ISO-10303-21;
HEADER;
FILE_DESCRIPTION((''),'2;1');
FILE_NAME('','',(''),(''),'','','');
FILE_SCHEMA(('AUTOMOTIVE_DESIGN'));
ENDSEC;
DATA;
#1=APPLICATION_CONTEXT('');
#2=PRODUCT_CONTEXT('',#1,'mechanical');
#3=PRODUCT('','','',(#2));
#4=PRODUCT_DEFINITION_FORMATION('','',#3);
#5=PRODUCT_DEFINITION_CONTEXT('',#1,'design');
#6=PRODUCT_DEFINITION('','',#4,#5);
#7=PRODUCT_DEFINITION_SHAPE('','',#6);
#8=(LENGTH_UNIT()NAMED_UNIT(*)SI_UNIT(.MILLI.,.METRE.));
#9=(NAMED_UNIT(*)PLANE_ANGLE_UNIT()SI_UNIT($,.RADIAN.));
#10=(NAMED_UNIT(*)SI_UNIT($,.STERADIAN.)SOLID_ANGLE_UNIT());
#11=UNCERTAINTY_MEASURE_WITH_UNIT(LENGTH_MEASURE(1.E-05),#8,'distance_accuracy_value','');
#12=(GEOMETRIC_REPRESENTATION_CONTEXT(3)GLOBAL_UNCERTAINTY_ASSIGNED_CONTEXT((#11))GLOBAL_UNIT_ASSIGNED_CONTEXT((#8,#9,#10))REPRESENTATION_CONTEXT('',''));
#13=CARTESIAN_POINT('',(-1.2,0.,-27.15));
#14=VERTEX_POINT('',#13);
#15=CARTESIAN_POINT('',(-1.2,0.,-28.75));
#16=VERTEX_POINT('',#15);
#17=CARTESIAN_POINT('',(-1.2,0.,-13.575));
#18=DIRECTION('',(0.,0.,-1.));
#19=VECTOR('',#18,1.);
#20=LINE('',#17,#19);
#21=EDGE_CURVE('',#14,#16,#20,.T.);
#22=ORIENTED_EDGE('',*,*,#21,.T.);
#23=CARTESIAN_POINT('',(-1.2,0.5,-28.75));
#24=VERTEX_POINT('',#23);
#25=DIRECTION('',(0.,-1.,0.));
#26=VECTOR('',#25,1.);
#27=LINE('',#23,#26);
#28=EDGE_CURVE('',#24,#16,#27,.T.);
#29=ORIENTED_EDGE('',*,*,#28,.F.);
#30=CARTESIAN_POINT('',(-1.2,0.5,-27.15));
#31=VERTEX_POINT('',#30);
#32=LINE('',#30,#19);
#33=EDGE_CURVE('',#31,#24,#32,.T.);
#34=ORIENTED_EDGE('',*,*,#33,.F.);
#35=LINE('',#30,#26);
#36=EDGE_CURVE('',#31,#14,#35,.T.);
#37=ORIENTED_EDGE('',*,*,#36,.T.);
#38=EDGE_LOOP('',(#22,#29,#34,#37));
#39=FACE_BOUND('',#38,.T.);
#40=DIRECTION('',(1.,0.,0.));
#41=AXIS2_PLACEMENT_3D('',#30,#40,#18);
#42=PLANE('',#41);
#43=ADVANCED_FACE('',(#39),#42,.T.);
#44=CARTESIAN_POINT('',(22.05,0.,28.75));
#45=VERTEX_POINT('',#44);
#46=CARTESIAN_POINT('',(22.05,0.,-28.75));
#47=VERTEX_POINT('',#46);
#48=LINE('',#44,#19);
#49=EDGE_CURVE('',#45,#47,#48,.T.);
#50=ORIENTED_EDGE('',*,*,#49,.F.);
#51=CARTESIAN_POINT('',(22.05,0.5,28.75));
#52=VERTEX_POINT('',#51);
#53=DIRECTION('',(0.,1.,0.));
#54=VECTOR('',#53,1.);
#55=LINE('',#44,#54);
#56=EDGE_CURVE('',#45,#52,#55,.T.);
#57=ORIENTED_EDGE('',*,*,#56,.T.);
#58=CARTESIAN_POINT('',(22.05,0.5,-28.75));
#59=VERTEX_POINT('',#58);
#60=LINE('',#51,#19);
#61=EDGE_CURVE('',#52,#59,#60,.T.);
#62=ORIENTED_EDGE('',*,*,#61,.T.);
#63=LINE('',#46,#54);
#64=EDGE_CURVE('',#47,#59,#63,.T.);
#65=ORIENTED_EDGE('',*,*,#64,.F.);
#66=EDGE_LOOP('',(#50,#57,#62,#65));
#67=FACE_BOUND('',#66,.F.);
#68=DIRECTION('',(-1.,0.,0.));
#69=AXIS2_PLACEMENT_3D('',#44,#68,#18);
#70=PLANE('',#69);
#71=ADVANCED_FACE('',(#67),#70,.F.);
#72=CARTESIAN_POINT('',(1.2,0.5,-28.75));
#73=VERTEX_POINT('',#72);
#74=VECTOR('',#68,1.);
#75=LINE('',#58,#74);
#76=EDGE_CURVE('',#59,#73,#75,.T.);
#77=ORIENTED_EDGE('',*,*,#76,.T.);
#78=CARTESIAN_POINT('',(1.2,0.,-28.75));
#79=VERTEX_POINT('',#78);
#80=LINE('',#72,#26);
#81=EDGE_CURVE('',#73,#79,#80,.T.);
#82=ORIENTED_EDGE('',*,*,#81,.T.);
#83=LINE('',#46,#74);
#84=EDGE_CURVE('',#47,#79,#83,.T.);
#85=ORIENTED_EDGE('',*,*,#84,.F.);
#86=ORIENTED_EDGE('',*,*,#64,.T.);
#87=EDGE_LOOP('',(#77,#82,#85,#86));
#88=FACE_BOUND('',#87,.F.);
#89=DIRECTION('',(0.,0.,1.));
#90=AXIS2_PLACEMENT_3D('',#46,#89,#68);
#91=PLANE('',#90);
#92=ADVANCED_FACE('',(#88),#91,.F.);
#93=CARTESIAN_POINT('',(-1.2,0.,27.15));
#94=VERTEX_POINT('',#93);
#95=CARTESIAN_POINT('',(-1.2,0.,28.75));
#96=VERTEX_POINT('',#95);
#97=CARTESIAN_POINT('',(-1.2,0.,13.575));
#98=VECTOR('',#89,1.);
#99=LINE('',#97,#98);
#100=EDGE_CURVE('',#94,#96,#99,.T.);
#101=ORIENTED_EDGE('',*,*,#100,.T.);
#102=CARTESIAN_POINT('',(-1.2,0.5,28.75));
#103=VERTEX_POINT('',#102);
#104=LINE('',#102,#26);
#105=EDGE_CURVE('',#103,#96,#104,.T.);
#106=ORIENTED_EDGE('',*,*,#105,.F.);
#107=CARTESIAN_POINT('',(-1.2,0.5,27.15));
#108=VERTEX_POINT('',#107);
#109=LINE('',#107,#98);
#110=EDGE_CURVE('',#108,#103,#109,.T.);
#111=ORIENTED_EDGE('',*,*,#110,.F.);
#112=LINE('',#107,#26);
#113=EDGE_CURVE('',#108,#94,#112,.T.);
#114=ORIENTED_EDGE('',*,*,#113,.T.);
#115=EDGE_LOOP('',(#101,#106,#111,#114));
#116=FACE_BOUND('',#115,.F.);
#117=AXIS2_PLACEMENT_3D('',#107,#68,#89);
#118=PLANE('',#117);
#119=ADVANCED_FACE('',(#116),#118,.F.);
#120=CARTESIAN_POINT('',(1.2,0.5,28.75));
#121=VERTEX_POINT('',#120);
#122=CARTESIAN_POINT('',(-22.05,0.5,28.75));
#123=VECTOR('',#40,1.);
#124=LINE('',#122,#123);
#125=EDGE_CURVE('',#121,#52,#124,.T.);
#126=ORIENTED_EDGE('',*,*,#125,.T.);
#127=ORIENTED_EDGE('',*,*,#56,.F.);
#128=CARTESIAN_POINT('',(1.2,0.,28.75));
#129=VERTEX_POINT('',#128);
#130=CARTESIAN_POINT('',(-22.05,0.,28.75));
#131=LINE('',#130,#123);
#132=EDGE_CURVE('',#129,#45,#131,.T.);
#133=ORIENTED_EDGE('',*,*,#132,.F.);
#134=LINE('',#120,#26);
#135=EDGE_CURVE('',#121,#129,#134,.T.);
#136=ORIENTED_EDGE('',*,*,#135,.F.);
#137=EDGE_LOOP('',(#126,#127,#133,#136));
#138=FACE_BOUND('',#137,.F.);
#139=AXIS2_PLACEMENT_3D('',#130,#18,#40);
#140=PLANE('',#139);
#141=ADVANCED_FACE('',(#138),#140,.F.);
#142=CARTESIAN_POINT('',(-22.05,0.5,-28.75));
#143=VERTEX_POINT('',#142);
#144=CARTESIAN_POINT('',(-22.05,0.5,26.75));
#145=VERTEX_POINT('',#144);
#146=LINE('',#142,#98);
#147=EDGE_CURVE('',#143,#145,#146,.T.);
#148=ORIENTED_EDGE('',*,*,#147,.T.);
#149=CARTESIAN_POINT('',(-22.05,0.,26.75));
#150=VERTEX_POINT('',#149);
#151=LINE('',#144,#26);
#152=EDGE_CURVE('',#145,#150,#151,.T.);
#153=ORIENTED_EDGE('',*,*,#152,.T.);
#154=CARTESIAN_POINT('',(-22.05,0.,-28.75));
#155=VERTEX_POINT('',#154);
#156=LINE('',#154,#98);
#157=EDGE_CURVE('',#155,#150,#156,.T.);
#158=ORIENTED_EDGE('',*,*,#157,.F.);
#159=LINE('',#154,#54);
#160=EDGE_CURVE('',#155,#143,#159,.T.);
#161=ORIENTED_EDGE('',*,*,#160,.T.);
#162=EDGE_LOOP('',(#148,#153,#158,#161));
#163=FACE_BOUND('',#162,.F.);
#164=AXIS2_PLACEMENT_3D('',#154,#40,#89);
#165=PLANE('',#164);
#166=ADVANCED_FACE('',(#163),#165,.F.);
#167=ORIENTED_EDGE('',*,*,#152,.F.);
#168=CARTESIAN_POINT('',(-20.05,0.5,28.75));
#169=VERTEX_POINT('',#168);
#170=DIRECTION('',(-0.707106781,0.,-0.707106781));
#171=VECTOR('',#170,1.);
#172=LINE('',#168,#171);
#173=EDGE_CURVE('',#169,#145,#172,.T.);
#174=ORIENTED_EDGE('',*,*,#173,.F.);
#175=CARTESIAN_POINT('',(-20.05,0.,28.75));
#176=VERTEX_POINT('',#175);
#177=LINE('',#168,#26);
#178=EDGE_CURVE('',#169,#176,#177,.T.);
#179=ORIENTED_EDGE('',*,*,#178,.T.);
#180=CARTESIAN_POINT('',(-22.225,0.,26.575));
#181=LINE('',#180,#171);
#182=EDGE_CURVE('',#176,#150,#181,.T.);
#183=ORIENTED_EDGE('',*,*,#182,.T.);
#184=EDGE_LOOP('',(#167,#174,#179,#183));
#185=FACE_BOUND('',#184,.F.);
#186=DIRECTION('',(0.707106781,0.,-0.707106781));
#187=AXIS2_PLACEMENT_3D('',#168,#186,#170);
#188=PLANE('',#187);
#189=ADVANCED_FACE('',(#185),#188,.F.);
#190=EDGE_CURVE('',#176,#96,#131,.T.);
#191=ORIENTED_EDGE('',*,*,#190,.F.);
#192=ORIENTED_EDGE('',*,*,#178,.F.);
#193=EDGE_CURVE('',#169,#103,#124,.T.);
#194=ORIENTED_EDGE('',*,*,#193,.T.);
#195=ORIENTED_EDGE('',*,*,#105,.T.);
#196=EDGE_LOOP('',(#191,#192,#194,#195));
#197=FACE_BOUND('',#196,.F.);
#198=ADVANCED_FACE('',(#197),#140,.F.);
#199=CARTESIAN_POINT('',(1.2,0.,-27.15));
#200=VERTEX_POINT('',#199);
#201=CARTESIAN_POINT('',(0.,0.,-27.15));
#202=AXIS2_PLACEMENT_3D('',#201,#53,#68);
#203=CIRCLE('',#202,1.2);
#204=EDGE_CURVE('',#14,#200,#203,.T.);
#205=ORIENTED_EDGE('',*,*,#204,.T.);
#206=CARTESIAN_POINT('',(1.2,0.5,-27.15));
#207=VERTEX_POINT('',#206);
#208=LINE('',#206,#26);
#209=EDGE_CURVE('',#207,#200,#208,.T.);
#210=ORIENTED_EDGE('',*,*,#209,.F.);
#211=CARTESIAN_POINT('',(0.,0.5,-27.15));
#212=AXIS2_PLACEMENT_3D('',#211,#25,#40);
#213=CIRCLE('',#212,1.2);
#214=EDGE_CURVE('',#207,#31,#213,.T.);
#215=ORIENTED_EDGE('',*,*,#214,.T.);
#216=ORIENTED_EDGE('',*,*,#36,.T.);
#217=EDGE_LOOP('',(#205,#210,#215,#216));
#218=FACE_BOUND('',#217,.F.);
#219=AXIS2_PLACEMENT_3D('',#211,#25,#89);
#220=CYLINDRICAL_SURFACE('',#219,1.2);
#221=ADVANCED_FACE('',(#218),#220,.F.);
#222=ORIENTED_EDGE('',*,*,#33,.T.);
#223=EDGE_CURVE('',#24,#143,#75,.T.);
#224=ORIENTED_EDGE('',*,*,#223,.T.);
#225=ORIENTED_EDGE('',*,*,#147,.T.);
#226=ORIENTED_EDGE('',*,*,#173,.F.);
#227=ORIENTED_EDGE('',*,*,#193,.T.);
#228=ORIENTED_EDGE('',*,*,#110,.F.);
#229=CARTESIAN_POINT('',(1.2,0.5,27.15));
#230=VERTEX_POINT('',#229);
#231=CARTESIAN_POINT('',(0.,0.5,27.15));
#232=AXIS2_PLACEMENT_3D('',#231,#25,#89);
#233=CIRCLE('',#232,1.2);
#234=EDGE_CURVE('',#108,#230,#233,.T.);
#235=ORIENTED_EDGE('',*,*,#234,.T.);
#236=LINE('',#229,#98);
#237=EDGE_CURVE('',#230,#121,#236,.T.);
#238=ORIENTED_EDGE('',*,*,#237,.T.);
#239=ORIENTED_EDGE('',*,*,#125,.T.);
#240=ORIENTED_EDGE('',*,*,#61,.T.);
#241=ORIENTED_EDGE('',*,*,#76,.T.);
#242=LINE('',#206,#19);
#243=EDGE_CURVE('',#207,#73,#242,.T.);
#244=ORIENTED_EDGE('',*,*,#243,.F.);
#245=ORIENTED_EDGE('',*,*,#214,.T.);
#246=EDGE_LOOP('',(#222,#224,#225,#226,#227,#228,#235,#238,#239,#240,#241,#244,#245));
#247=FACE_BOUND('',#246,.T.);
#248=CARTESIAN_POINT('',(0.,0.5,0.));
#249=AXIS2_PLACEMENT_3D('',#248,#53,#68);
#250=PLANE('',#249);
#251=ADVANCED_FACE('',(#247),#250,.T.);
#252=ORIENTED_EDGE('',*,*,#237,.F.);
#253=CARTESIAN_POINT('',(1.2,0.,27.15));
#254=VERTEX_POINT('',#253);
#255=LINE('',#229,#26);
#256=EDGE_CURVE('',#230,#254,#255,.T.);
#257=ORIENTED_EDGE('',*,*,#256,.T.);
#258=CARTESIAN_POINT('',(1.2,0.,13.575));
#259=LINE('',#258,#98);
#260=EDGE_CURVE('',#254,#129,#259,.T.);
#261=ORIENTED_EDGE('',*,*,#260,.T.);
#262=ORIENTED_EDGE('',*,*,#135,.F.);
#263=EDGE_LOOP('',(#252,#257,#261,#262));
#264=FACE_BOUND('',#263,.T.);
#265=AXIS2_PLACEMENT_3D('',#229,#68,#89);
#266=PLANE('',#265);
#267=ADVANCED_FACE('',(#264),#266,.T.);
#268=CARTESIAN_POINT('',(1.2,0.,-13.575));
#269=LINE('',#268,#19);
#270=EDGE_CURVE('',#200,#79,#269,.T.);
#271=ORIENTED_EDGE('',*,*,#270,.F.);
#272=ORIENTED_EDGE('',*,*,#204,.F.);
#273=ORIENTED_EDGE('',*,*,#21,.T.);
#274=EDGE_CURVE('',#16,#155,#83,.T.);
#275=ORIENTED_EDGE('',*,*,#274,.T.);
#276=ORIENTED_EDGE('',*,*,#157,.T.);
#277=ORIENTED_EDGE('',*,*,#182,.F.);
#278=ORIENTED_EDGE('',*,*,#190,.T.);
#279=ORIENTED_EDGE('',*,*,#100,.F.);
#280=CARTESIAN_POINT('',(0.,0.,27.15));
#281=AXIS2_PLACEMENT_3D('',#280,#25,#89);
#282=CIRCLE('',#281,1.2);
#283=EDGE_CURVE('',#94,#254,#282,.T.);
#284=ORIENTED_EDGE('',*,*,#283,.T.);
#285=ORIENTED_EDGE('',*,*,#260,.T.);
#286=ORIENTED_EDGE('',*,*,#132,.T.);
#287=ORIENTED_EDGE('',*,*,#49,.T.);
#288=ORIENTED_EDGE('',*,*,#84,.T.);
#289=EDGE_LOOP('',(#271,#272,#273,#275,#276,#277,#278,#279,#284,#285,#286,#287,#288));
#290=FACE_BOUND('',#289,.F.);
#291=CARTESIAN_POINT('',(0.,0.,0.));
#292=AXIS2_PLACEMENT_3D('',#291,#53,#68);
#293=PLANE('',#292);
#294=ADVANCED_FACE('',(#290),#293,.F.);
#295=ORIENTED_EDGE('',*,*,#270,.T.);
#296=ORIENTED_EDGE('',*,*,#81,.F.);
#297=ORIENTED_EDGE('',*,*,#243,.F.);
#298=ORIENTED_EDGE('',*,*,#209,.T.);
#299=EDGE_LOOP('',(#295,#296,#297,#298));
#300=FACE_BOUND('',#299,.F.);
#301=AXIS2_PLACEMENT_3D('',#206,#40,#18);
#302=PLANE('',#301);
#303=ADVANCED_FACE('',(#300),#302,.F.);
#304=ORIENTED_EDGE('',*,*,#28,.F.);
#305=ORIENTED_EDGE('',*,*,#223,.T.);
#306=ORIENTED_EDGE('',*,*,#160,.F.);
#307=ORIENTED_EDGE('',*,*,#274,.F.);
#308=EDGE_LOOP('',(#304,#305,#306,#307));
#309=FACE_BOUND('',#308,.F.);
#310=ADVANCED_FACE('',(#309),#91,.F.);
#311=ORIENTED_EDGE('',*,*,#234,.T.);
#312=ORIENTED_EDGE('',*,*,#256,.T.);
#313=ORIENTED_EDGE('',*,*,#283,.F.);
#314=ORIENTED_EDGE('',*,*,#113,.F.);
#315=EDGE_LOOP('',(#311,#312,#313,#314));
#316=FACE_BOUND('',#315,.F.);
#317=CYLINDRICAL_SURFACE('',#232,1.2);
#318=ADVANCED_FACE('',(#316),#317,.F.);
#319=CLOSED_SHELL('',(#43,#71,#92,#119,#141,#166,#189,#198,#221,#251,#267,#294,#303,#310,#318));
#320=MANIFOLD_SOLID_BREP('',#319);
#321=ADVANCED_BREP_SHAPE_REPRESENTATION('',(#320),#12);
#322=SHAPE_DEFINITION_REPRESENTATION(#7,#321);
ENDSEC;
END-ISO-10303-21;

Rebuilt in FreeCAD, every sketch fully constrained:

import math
import FreeCAD as App
import Part
import Sketcher
from FreeCAD import Vector
Q = App.Units.Quantity


def add_polygon(sketch, points):
    """Adds a closed chain of lines whose ends are joined by coincident constraints."""
    first, n = sketch.GeometryCount, len(points)
    for a, b in zip(points, points[1:] + points[:1]):
        sketch.addGeometry(Part.LineSegment(App.Vector(*a, 0), App.Vector(*b, 0)), False)
    for i in range(n):
        sketch.addConstraint(Sketcher.Constraint("Coincident", first + i, 2, first + (i + 1) % n, 1))

doc = App.newDocument("Part")
body = doc.addObject("PartDesign::Body", "Body")

sketch1 = body.newObject("Sketcher::SketchObject", "Sketch")
sketch1.AttachmentSupport = (doc.getObject("XZ_Plane"), [""])
sketch1.MapMode = "FlatFace"
add_polygon(sketch1, [(22, 29), (22, -29), (-22, -29), (-22, 29)])
sketch1.addConstraint([
    Sketcher.Constraint("Vertical", 0),
    Sketcher.Constraint("Horizontal", 1),
    Sketcher.Constraint("Vertical", 2),
    Sketcher.Constraint("Horizontal", 3),
    Sketcher.Constraint("Symmetric", 0, 2, 2, 2, -1, 1),
    Sketcher.Constraint("DistanceX", 1, 2, 1, 1, Q("44.1 mm")),
    Sketcher.Constraint("DistanceY", 0, 2, 0, 1, Q("57.5 mm")),
])
pad1 = body.newObject("PartDesign::Pad", "Pad")
pad1.Profile = sketch1
pad1.Length = 0.5
pad1.Reversed = True

sketch2 = body.newObject("Sketcher::SketchObject", "Sketch001")
sketch2.AttachmentSupport = (doc.getObject("XZ_Plane"), [""])
sketch2.MapMode = "FlatFace"
sketch2.AttachmentOffset = App.Placement(Vector(0, 0, -0.5), App.Rotation())
sketch2.addGeometry([
    Part.Circle(Vector(0, 27.1, 0), Vector(0, 0, 1), 1.2),
    Part.Circle(Vector(0, -27.1, 0), Vector(0, 0, 1), 1.2),
], False)
sketch2.addConstraint([
    Sketcher.Constraint("Equal", 0, 1),
    Sketcher.Constraint("Symmetric", 0, 3, 1, 3, -1, 1),
    Sketcher.Constraint("PointOnObject", 0, 3, -2),
    Sketcher.Constraint("Diameter", 0, Q("2.4 mm")),
    Sketcher.Constraint("DistanceY", 1, 3, 0, 3, Q("54.3 mm")),
])
doc.recompute()
hole = body.newObject("PartDesign::Hole", "Hole")
hole.Profile = sketch2
hole.ThreadType = "None"
hole.Diameter = 2.4
hole.DepthType = "ThroughAll"
hole.Reversed = True

sketch3 = body.newObject("Sketcher::SketchObject", "Sketch002")
sketch3.AttachmentSupport = (doc.getObject("XZ_Plane"), [""])
sketch3.MapMode = "FlatFace"
sketch3.AttachmentOffset = App.Placement(Vector(0, 0, -0.5), App.Rotation())
add_polygon(sketch3, [(-22.1, 26.8), (-22.1, 28.8), (-20.1, 28.8)])
sketch3.addConstraint([
    Sketcher.Constraint("Vertical", 0),
    Sketcher.Constraint("Horizontal", 1),
    Sketcher.Constraint("Equal", 1, 0),
    Sketcher.Constraint("DistanceX", 1, 1, 1, 2, Q("2 mm")),
    Sketcher.Constraint("DistanceX", 0, 2, -1, 1, Q("22.05 mm")),
    Sketcher.Constraint("DistanceY", -1, 1, 0, 2, Q("28.75 mm")),
])
pocket1 = body.newObject("PartDesign::Pocket", "Pocket")
pocket1.Profile = sketch3
pocket1.Type = "ThroughAll"
pocket1.Reversed = True

sketch4 = body.newObject("Sketcher::SketchObject", "Sketch003")
sketch4.AttachmentSupport = (doc.getObject("XZ_Plane"), [""])
sketch4.MapMode = "FlatFace"
sketch4.AttachmentOffset = App.Placement(Vector(0, 0, -0.5), App.Rotation())
sketch4.addGeometry(Part.LineSegment(Vector(1.2, 28.8, 0), Vector(1.2, 27.1, 0)), False)
sketch4.addGeometry(Part.ArcOfCircle(Part.Circle(Vector(0, 27.1, 0), Vector(0, 0, 1), 1.2), math.radians(0), math.radians(180)), False)
sketch4.addGeometry(Part.LineSegment(Vector(-1.2, 27.1, 0), Vector(-1.2, 28.8, 0)), False)
sketch4.addGeometry(Part.LineSegment(Vector(-1.2, 28.8, 0), Vector(1.2, 28.8, 0)), False)
add_polygon(sketch4, [(-1.2, -28.8), (-1.2, -27.1), (1.2, -27.1), (1.2, -28.8)])
sketch4.addConstraint([
    Sketcher.Constraint("Tangent", 0, 2, 1, 1),
    Sketcher.Constraint("Tangent", 1, 2, 2, 1),
    Sketcher.Constraint("Coincident", 2, 2, 3, 1),
    Sketcher.Constraint("Coincident", 3, 2, 0, 1),
    Sketcher.Constraint("Vertical", 0),
    Sketcher.Constraint("Vertical", 2),
    Sketcher.Constraint("Horizontal", 3),
    Sketcher.Constraint("Vertical", 4),
    Sketcher.Constraint("Horizontal", 5),
    Sketcher.Constraint("Vertical", 6),
    Sketcher.Constraint("Horizontal", 7),
    Sketcher.Constraint("Symmetric", 0, 2, 4, 2, -1, 1),
    Sketcher.Constraint("Symmetric", 2, 2, 6, 2, -1, 1),
    Sketcher.Constraint("PointOnObject", 1, 3, -2),
    Sketcher.Constraint("Radius", 1, Q("1.2 mm")),
    Sketcher.Constraint("DistanceY", 0, 2, 0, 1, Q("1.6 mm")),
    Sketcher.Constraint("DistanceY", 4, 2, 1, 2, Q("54.3 mm")),
])
pocket2 = body.newObject("PartDesign::Pocket", "Pocket001")
pocket2.Profile = sketch4
pocket2.Type = "ThroughAll"
pocket2.Reversed = True

doc.recompute()
